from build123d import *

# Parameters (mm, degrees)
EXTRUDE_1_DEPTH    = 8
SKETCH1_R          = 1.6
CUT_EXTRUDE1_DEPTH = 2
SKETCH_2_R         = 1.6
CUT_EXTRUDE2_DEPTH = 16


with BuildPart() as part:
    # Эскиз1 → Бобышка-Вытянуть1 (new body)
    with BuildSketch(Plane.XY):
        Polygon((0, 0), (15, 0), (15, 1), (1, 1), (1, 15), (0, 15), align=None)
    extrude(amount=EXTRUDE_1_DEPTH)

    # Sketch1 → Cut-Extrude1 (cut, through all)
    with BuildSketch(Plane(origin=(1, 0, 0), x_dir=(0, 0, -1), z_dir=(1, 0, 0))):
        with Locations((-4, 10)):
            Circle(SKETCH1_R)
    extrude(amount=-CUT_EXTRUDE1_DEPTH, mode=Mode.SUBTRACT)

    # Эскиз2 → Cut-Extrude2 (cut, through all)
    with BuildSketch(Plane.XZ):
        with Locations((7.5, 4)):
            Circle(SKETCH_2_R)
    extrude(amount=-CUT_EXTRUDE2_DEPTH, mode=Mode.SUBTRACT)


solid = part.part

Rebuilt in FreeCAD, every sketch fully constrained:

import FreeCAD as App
import Part
import Sketcher
from FreeCAD import Vector
Q = App.Units.Quantity


def add_polygon(sketch, points):
    """Adds a closed chain of lines whose ends are joined by coincident constraints."""
    first, n = sketch.GeometryCount, len(points)
    for a, b in zip(points, points[1:] + points[:1]):
        sketch.addGeometry(Part.LineSegment(App.Vector(*a, 0), App.Vector(*b, 0)), False)
    for i in range(n):
        sketch.addConstraint(Sketcher.Constraint("Coincident", first + i, 2, first + (i + 1) % n, 1))

doc = App.newDocument("Part")
body = doc.addObject("PartDesign::Body", "Body")

# Sketch on XY plane
sketch1 = body.newObject("Sketcher::SketchObject", "Sketch")
sketch1.AttachmentSupport = (doc.getObject("XY_Plane"), [""])
sketch1.MapMode = "FlatFace"
add_polygon(sketch1, [(0, 0), (15, 0), (15, 1), (1, 1), (1, 15), (0, 15)])  # lines 0-5
sketch1.addConstraint([
    Sketcher.Constraint("Horizontal", 0),
    Sketcher.Constraint("Vertical", 1),
    Sketcher.Constraint("Horizontal", 2),
    Sketcher.Constraint("Vertical", 3),
    Sketcher.Constraint("Horizontal", 4),
    Sketcher.Constraint("Vertical", 5),
    Sketcher.Constraint("Coincident", 5, 2, -1, 1),
    Sketcher.Constraint("Equal", 4, 1),
    Sketcher.Constraint("Equal", 2, 3),
    Sketcher.Constraint("DistanceX", 0, 1, 0, 2, Q("15 mm")),
    Sketcher.Constraint("DistanceX", 2, 2, 2, 1, Q("14 mm")),
])
pad1 = body.newObject("PartDesign::Pad", "Pad")
pad1.Profile = sketch1
pad1.Length = 8

# Sketch on YZ plane
sketch2 = body.newObject("Sketcher::SketchObject", "Sketch001")
sketch2.AttachmentSupport = (doc.getObject("YZ_Plane"), [""])
sketch2.MapMode = "FlatFace"
sketch2.AttachmentOffset = App.Placement(Vector(0, 0, 1), App.Rotation())
sketch2.addGeometry(Part.Circle(Vector(10, 4, 0), Vector(0, 0, 1), 1.6), False)
sketch2.addConstraint([
    Sketcher.Constraint("Diameter", 0, Q("3.2 mm")),
    Sketcher.Constraint("DistanceX", -1, 1, 0, 3, Q("10 mm")),
    Sketcher.Constraint("DistanceY", -1, 1, 0, 3, Q("4 mm")),
])
pocket1 = body.newObject("PartDesign::Pocket", "Pocket")
pocket1.Profile = sketch2
pocket1.Type = "ThroughAll"

# Sketch on XZ plane
sketch3 = body.newObject("Sketcher::SketchObject", "Sketch002")
sketch3.AttachmentSupport = (doc.getObject("XZ_Plane"), [""])
sketch3.MapMode = "FlatFace"
sketch3.addGeometry(Part.Circle(Vector(7.5, 4, 0), Vector(0, 0, 1), 1.6), False)
sketch3.addConstraint([
    Sketcher.Constraint("Diameter", 0, Q("3.2 mm")),
    Sketcher.Constraint("DistanceY", -1, 1, 0, 3, Q("4 mm")),
    Sketcher.Constraint("DistanceX", -1, 1, 0, 3, Q("7.5 mm")),
])
pocket2 = body.newObject("PartDesign::Pocket", "Pocket001")
pocket2.Profile = sketch3
pocket2.Type = "ThroughAll"

doc.recompute()
